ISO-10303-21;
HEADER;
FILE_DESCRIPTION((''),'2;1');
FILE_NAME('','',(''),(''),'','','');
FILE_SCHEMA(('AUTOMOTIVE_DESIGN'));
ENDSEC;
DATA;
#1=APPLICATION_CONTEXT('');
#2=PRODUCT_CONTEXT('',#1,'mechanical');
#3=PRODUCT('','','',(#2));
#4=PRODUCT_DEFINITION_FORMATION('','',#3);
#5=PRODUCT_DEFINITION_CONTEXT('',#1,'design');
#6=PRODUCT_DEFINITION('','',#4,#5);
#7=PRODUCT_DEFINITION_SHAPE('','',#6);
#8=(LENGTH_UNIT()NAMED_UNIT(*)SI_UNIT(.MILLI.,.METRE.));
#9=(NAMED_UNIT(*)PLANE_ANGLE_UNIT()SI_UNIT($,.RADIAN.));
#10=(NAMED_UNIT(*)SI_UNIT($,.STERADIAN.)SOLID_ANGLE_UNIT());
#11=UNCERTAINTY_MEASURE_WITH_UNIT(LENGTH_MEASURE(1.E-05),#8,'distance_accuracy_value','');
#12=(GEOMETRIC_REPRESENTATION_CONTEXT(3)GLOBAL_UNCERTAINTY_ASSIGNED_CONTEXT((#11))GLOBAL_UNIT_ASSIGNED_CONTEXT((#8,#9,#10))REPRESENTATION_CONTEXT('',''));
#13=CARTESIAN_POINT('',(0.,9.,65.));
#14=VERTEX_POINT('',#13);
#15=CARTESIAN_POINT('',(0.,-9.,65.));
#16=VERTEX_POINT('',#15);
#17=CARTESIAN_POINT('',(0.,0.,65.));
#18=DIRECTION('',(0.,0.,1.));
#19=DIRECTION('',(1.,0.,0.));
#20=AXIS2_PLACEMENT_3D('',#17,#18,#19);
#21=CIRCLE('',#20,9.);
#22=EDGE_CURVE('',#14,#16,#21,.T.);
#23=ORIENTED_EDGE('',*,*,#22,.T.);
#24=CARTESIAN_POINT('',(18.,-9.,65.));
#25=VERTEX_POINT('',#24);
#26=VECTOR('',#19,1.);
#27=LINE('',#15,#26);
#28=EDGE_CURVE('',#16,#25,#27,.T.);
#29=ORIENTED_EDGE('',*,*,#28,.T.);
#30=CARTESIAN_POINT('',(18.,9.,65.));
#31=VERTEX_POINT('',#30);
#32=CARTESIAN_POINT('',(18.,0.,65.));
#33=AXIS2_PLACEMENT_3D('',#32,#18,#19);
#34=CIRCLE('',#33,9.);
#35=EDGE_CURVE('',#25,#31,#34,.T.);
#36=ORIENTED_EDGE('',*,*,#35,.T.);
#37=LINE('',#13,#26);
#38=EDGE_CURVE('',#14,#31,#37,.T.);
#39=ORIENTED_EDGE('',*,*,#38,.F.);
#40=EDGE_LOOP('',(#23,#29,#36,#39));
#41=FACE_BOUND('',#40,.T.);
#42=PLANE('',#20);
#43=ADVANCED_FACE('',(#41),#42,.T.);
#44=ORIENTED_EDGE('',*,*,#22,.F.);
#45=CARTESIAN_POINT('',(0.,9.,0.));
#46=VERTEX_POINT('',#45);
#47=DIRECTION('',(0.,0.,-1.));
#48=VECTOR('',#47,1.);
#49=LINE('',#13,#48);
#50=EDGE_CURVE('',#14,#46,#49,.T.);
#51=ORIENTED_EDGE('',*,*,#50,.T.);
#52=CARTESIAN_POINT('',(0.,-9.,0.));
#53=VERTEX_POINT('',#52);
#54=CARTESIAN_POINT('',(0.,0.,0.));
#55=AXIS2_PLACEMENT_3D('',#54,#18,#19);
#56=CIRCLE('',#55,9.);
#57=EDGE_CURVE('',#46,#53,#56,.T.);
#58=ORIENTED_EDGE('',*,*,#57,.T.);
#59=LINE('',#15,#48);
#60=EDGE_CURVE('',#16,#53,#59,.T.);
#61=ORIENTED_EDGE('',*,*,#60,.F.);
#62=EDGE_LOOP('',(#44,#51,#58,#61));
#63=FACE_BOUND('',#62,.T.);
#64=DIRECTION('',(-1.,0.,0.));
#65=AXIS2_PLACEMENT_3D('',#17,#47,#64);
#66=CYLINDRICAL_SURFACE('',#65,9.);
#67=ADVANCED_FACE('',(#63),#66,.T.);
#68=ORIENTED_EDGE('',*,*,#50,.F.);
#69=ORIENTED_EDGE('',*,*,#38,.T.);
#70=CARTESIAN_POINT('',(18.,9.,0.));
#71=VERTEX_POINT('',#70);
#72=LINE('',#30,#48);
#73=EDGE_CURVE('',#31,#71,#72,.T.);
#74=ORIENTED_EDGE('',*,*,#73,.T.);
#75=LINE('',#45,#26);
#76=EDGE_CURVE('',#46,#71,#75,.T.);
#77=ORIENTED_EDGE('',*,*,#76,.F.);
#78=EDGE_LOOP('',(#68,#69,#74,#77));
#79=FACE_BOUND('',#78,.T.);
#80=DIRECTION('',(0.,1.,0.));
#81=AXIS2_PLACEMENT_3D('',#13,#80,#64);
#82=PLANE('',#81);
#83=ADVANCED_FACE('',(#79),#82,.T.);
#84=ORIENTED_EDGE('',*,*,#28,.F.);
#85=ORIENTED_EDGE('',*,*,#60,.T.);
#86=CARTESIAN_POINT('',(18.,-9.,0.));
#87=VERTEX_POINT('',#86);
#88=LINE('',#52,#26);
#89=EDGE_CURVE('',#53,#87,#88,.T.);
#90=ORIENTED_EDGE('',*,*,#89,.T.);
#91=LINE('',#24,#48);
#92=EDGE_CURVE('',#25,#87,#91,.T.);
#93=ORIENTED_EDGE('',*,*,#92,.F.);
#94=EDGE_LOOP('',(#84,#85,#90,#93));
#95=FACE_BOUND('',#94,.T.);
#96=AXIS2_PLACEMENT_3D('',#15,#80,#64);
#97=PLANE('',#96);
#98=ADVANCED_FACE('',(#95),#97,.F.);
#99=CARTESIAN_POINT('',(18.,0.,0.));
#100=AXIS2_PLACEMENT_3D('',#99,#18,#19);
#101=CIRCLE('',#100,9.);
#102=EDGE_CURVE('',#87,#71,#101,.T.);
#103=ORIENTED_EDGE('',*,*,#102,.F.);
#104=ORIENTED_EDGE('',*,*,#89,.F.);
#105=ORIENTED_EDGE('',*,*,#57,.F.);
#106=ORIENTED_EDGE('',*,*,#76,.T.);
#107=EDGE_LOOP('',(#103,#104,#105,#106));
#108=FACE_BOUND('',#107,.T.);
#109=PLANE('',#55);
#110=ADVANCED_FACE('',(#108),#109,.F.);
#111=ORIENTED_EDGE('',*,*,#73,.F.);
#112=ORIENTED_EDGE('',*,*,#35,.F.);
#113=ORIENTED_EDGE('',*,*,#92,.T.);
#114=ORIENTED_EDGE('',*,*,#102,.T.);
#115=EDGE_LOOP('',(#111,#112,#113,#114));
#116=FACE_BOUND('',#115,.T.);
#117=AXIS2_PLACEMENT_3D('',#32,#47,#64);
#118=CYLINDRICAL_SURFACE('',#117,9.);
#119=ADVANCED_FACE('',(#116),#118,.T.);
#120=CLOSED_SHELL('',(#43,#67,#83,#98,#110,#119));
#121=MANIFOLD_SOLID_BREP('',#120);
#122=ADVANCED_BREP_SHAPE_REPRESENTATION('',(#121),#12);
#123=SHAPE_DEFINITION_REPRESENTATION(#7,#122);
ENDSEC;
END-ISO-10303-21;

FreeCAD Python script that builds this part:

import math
import FreeCAD as App
import Part
import Sketcher

doc = App.newDocument("Part")
body = doc.addObject("PartDesign::Body", "Body")

# Sketch on XY plane
sketch1 = body.newObject("Sketcher::SketchObject", "Sketch")
sketch1.AttachmentSupport = (doc.getObject("XY_Plane"), [""])
sketch1.MapMode = "FlatFace"
sketch1.addGeometry([
    Part.ArcOfCircle(Part.Circle(App.Vector(18, 0, 0), App.Vector(0, 0, 1), 9), math.radians(-90), math.radians(90)),
    Part.LineSegment(App.Vector(18, 9, 0), App.Vector(0, 9, 0)),
    Part.ArcOfCircle(Part.Circle(App.Vector(0, 0, 0), App.Vector(0, 0, 1), 9), math.radians(90), math.radians(270)),
    Part.LineSegment(App.Vector(0, -9, 0), App.Vector(18, -9, 0)),
], False)
sketch1.addConstraint([
    Sketcher.Constraint("Tangent", 0, 2, 1, 1),
    Sketcher.Constraint("Tangent", 1, 2, 2, 1),
    Sketcher.Constraint("Tangent", 2, 2, 3, 1),
    Sketcher.Constraint("Tangent", 3, 2, 0, 1),
    Sketcher.Constraint("Horizontal", 1),
    Sketcher.Constraint("Horizontal", 3),
    Sketcher.Constraint("Coincident", 2, 3, -1, 1),
    Sketcher.Constraint("Radius", 0, 9.0),
    Sketcher.Constraint("DistanceX", 1, 2, 1, 1, 18.0),
])
pad1 = body.newObject("PartDesign::Pad", "Pad")
pad1.Profile = sketch1
pad1.Length = 65

doc.recompute()
